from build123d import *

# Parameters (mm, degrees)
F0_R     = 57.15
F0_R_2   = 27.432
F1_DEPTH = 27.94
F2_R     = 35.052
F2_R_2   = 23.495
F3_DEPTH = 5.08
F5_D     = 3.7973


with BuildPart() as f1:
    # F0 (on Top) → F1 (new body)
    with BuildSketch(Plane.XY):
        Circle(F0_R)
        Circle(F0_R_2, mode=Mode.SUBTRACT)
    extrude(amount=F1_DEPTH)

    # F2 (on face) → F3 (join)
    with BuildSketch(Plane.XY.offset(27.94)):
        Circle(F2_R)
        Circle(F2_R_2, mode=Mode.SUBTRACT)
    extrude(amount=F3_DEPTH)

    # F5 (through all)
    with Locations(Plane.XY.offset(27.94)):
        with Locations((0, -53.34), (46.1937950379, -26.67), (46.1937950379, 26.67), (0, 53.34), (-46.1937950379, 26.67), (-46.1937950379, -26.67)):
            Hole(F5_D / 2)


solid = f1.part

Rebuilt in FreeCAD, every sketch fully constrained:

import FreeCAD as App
import Part
import Sketcher

V = App.Vector
Q = App.Units.Quantity

doc = App.newDocument("Part")
body = doc.addObject("PartDesign::Body", "Body")

# Sketch on XY plane
sketch1 = body.newObject("Sketcher::SketchObject", "Sketch")
sketch1.AttachmentSupport = (doc.getObject("XY_Plane"), [""])
sketch1.MapMode = "FlatFace"
sketch1.addGeometry([
    Part.Circle(V(0, 0, 0), V(0, 0, 1), 57.15),
    Part.Circle(V(0, 0, 0), V(0, 0, 1), 27.432),
], False)
sketch1.addConstraint([
    Sketcher.Constraint("Coincident", 0, 3, -1, 1),
    Sketcher.Constraint("Coincident", 1, 3, -1, 1),
    Sketcher.Constraint("Diameter", 0, Q("4.5 in")),
    Sketcher.Constraint("Diameter", 1, Q("2.16 in")),
])
pad1 = body.newObject("PartDesign::Pad", "Pad")
pad1.Profile = sketch1
pad1.Length = Q("1.1 in")

# Sketch on XY plane
sketch2 = body.newObject("Sketcher::SketchObject", "Sketch001")
sketch2.AttachmentSupport = (doc.getObject("XY_Plane"), [""])
sketch2.MapMode = "FlatFace"
sketch2.AttachmentOffset = App.Placement(V(0, 0, 1.1 * 25.4), App.Rotation())
sketch2.addGeometry([
    Part.Circle(V(0, 0, 0), V(0, 0, 1), 35.052),
    Part.Circle(V(0, 0, 0), V(0, 0, 1), 23.495),
], False)
sketch2.addConstraint([
    Sketcher.Constraint("Coincident", 0, 3, -1, 1),
    Sketcher.Constraint("Coincident", 1, 3, -1, 1),
    Sketcher.Constraint("Diameter", 0, Q("2.76 in")),
    Sketcher.Constraint("Diameter", 1, Q("1.85 in")),
])
pad2 = body.newObject("PartDesign::Pad", "Pad001")
pad2.Profile = sketch2
pad2.Length = Q("0.2 in")

# Sketch on XY plane
sketch3 = body.newObject("Sketcher::SketchObject", "Sketch002")
sketch3.AttachmentSupport = (doc.getObject("XY_Plane"), [""])
sketch3.MapMode = "FlatFace"
sketch3.AttachmentOffset = App.Placement(V(0, 0, 1.1 * 25.4), App.Rotation())
sketch3.addGeometry([
    Part.Circle(V(0, -53.34, 0), V(0, 0, 1), 1.89865),  # 0
    Part.Circle(V(46.193795, -26.67, 0), V(0, 0, 1), 1.89865),  # 1
    Part.Circle(V(46.193795, 26.67, 0), V(0, 0, 1), 1.89865),  # 2
    Part.Circle(V(0, 53.34, 0), V(0, 0, 1), 1.89865),  # 3
    Part.Circle(V(-46.193795, 26.67, 0), V(0, 0, 1), 1.89865),  # 4
    Part.Circle(V(-46.193795, -26.67, 0), V(0, 0, 1), 1.89865),  # 5
], False)
sketch3.addConstraint([
    Sketcher.Constraint("Equal", 0, 1),
    Sketcher.Constraint("Equal", 1, 2),
    Sketcher.Constraint("Equal", 2, 3),
    Sketcher.Constraint("Equal", 3, 4),
    Sketcher.Constraint("Equal", 4, 5),
    Sketcher.Constraint("Symmetric", 0, 3, 3, 3, -1, 1),
    Sketcher.Constraint("Symmetric", 1, 3, 4, 3, -1, 1),
    Sketcher.Constraint("Symmetric", 2, 3, 5, 3, -1, 1),
    Sketcher.Constraint("Symmetric", 2, 3, 4, 3, -2),
    Sketcher.Constraint("PointOnObject", 0, 3, -2),
    Sketcher.Constraint("Diameter", 0, Q("0.1495 in")),
    Sketcher.Constraint("DistanceY", 0, 3, -1, 1, Q("2.1 in")),
    Sketcher.Constraint("DistanceY", 1, 3, 2, 3, Q("2.1 in")),
    Sketcher.Constraint("DistanceX", 4, 3, 2, 3, Q("92.38759 mm")),
])
doc.recompute()
hole = body.newObject("PartDesign::Hole", "Hole")
hole.Profile = sketch3
hole.ThreadType = "None"
hole.Diameter = Q("0.1495 in")
hole.DepthType = "ThroughAll"

doc.recompute()
